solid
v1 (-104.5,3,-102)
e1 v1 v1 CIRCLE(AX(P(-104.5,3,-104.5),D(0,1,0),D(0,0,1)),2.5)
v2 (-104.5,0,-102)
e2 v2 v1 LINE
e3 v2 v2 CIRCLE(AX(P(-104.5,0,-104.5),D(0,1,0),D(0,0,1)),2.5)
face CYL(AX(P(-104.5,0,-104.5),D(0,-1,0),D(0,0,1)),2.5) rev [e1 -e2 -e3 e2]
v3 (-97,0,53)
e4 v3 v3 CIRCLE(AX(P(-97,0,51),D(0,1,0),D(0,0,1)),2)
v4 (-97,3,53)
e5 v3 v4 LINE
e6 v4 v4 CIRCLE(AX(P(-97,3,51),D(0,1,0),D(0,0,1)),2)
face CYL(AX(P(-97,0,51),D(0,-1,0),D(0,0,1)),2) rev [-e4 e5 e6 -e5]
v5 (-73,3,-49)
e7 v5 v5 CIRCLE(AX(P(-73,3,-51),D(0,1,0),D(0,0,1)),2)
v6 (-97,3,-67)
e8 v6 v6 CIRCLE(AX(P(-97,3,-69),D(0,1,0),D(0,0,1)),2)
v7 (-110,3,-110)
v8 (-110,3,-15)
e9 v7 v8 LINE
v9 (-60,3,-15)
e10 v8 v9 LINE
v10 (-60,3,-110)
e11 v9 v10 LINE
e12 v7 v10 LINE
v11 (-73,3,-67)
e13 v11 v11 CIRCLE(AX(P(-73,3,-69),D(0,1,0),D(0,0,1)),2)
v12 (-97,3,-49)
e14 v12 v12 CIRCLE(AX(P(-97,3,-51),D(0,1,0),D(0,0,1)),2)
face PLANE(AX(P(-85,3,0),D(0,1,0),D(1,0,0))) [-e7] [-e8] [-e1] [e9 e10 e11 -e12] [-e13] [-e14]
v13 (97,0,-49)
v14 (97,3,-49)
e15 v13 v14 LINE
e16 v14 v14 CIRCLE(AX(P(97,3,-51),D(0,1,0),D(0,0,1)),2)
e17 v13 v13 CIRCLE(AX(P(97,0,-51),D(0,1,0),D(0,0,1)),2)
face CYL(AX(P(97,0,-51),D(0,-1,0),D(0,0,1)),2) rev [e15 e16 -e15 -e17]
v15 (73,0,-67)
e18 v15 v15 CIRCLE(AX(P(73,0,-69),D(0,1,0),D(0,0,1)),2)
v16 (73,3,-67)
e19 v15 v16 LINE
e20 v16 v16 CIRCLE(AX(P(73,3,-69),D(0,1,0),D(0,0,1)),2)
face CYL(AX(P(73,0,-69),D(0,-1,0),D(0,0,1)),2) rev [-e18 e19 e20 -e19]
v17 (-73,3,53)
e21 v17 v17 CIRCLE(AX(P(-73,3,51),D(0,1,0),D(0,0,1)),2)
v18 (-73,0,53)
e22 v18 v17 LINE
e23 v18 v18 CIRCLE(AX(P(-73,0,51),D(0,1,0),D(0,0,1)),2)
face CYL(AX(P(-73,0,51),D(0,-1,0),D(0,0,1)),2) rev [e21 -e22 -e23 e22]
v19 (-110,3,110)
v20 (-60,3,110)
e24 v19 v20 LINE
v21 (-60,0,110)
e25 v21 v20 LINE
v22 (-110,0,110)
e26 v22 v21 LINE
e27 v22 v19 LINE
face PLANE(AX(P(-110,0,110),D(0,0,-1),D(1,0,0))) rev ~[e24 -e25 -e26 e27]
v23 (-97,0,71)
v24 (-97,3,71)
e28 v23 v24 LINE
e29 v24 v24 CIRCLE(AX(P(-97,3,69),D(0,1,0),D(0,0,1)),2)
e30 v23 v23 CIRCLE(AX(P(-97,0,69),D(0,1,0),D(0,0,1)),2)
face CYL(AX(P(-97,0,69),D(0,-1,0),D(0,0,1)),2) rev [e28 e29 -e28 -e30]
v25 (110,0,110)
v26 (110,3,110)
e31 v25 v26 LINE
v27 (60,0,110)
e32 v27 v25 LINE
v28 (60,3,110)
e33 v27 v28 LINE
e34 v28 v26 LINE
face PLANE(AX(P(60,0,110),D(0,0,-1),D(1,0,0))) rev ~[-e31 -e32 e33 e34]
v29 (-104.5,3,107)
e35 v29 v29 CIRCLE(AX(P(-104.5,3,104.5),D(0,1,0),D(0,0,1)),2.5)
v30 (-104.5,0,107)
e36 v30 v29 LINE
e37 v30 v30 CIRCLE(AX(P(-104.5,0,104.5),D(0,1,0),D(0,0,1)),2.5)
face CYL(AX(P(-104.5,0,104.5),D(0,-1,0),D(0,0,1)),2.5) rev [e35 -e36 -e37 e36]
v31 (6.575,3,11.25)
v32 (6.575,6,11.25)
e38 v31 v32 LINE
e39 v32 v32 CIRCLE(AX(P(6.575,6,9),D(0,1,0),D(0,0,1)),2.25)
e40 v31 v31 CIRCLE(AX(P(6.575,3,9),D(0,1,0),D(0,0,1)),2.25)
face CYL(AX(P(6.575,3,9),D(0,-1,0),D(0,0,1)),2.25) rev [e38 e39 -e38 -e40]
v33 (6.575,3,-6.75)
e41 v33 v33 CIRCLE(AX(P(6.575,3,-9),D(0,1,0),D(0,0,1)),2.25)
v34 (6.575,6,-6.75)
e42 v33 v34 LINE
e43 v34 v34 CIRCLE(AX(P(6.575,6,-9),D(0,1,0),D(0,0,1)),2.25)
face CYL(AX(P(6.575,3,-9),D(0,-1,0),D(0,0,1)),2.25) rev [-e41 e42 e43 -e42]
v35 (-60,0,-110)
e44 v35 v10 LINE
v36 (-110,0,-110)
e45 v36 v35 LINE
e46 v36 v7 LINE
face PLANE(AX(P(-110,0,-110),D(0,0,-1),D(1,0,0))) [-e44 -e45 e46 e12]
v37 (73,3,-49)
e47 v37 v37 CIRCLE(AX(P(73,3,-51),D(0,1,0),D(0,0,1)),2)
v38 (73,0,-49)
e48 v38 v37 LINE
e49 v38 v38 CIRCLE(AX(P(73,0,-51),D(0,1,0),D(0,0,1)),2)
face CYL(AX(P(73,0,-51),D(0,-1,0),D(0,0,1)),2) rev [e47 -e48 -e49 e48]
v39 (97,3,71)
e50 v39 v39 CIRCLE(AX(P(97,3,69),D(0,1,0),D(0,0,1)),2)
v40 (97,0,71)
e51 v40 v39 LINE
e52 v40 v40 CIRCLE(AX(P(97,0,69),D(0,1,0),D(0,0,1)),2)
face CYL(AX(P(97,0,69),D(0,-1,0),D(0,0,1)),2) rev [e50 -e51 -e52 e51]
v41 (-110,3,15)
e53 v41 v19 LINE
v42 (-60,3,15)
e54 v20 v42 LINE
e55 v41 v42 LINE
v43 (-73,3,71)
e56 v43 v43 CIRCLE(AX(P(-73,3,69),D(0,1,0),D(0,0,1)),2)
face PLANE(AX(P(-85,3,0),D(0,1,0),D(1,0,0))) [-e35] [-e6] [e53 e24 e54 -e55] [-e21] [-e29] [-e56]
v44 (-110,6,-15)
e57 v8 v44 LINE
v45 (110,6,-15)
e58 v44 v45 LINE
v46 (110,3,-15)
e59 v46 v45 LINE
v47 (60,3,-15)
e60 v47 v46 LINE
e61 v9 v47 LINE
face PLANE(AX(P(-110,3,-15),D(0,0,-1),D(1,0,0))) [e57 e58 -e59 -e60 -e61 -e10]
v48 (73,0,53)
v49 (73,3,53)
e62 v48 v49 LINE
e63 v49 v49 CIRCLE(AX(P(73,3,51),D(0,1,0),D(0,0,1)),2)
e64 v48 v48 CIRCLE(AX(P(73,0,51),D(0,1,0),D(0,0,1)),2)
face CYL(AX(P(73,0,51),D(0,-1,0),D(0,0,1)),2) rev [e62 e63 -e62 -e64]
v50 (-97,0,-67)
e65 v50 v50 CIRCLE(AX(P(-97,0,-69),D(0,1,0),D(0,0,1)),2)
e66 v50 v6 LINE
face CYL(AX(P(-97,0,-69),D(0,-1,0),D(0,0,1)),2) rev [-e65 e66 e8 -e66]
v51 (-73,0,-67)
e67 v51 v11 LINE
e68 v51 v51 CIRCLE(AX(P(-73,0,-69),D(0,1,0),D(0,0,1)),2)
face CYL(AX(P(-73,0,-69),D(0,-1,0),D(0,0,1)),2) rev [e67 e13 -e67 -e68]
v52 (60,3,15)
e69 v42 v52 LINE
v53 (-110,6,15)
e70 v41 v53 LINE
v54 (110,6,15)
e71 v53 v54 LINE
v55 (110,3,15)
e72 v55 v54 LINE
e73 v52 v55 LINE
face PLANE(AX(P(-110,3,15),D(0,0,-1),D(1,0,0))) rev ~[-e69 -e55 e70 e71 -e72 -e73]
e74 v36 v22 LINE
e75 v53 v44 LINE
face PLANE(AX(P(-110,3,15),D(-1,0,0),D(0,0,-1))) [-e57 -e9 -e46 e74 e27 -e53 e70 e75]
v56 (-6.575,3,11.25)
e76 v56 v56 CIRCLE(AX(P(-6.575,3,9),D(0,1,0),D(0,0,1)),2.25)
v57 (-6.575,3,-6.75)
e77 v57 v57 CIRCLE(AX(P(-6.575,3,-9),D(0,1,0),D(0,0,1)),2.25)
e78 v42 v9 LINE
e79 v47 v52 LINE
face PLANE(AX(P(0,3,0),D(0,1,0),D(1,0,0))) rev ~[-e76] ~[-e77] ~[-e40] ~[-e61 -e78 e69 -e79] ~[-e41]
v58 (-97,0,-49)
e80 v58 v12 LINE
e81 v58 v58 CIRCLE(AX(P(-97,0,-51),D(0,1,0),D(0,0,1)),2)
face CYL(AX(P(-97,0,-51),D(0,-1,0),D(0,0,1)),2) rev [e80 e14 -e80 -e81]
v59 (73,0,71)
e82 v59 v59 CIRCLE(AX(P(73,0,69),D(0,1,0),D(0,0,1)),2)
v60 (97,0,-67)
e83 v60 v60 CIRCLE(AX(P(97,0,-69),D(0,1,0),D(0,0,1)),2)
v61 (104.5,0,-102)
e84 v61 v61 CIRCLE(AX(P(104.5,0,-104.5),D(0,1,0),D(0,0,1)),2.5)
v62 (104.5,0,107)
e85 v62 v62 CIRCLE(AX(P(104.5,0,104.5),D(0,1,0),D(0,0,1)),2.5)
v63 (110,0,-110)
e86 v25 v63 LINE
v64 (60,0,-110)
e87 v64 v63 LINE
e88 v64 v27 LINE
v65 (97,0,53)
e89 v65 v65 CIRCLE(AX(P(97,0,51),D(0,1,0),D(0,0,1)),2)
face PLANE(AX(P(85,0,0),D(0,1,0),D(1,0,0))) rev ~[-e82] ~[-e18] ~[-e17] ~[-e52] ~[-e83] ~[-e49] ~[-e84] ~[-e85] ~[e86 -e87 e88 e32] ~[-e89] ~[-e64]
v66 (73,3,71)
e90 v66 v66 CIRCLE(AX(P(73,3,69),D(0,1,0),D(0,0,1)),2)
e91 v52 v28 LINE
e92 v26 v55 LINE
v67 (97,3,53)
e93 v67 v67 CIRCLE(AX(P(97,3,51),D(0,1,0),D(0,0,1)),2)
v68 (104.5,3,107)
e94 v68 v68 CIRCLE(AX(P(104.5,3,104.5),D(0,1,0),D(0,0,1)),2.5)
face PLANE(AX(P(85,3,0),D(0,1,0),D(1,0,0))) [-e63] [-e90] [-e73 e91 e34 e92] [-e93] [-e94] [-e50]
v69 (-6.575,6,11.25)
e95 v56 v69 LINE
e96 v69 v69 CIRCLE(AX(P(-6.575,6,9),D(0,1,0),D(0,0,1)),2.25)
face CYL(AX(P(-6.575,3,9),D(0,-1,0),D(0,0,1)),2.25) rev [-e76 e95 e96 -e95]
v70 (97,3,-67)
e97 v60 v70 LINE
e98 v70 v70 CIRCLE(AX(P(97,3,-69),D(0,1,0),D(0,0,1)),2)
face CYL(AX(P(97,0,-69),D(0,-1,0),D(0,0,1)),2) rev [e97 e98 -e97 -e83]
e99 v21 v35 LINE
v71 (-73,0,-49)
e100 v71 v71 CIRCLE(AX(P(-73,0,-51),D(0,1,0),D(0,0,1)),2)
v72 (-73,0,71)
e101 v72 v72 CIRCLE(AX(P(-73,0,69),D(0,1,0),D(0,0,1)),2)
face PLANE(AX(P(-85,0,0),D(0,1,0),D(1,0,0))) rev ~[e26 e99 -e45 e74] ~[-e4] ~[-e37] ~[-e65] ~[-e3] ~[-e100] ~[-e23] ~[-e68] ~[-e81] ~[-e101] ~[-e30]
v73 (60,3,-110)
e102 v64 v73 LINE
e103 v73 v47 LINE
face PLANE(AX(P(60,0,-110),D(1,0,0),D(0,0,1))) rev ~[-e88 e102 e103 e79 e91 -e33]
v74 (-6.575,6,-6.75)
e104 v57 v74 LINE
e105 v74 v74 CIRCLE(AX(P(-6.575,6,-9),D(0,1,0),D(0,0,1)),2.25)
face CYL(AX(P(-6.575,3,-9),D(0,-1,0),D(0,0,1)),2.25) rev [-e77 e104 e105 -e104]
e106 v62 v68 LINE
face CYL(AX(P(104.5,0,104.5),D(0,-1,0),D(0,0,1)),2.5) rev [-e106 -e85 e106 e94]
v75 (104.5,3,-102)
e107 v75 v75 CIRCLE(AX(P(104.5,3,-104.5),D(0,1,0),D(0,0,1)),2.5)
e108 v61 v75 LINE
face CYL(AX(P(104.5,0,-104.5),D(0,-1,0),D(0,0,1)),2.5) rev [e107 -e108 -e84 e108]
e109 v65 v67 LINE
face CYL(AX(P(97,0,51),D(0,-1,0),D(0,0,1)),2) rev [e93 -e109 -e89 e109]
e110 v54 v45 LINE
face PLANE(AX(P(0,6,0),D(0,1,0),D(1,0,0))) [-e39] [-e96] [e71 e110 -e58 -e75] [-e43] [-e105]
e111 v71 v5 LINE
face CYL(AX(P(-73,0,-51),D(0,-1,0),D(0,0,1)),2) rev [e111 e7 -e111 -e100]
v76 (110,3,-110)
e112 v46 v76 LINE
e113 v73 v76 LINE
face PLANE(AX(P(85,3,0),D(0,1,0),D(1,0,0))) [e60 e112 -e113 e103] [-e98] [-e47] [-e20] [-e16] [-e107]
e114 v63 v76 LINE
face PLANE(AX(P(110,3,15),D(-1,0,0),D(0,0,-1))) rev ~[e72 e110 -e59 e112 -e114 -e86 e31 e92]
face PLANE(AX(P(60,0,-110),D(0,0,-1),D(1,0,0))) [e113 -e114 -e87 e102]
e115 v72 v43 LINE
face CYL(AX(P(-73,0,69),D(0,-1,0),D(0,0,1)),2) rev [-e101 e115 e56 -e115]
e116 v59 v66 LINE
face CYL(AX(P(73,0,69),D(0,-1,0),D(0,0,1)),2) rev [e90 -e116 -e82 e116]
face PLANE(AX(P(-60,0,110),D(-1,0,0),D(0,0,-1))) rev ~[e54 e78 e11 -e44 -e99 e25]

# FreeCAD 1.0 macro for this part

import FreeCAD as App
import Part
import Sketcher

doc = App.newDocument("Part")
body = doc.addObject("PartDesign::Body", "Body")
body.AllowCompound = True

sketch1 = body.newObject("Sketcher::SketchObject", "Sketch")
sketch1.AttachmentSupport = (doc.getObject("XZ_Plane"), [""])
sketch1.MapMode = "FlatFace"
sketch1.addGeometry([
    Part.LineSegment(App.Vector(-110, 110, 0), App.Vector(-60, 110, 0)),
    Part.LineSegment(App.Vector(-60, 110, 0), App.Vector(-60, -110, 0)),
    Part.LineSegment(App.Vector(-60, -110, 0), App.Vector(-110, -110, 0)),
    Part.LineSegment(App.Vector(-110, -110, 0), App.Vector(-110, 110, 0)),
    Part.Circle(App.Vector(-104.5, 104.5, 0), App.Vector(0, 0, 1), 2.5),
    Part.Circle(App.Vector(-97, 69, 0), App.Vector(0, 0, 1), 2),
    Part.Circle(App.Vector(-97, 51, 0), App.Vector(0, 0, 1), 2),
    Part.Circle(App.Vector(-73, 69, 0), App.Vector(0, 0, 1), 2),
    Part.Circle(App.Vector(-73, 51, 0), App.Vector(0, 0, 1), 2),
    Part.Circle(App.Vector(-97, -51, 0), App.Vector(0, 0, 1), 2),
    Part.Circle(App.Vector(-104.5, -104.5, 0), App.Vector(0, 0, 1), 2.5),
    Part.Circle(App.Vector(-97, -69, 0), App.Vector(0, 0, 1), 2),
    Part.Circle(App.Vector(-73, -51, 0), App.Vector(0, 0, 1), 2),
    Part.Circle(App.Vector(-73, -69, 0), App.Vector(0, 0, 1), 2),
    Part.LineSegment(App.Vector(60, 110, 0), App.Vector(110, 110, 0)),
    Part.LineSegment(App.Vector(110, 110, 0), App.Vector(110, -110, 0)),
    Part.LineSegment(App.Vector(110, -110, 0), App.Vector(60, -110, 0)),
    Part.LineSegment(App.Vector(60, -110, 0), App.Vector(60, 110, 0)),
    Part.Circle(App.Vector(73, 69, 0), App.Vector(0, 0, 1), 2),
    Part.Circle(App.Vector(73, 51, 0), App.Vector(0, 0, 1), 2),
    Part.Circle(App.Vector(97, 69, 0), App.Vector(0, 0, 1), 2),
    Part.Circle(App.Vector(104.5, 104.5, 0), App.Vector(0, 0, 1), 2.5),
    Part.Circle(App.Vector(97, 51, 0), App.Vector(0, 0, 1), 2),
    Part.Circle(App.Vector(73, -51, 0), App.Vector(0, 0, 1), 2),
    Part.Circle(App.Vector(73, -69, 0), App.Vector(0, 0, 1), 2),
    Part.Circle(App.Vector(97, -51, 0), App.Vector(0, 0, 1), 2),
    Part.Circle(App.Vector(97, -69, 0), App.Vector(0, 0, 1), 2),
    Part.Circle(App.Vector(104.5, -104.5, 0), App.Vector(0, 0, 1), 2.5),
], False)
sketch1.addConstraint([
    Sketcher.Constraint("Coincident", 0, 2, 1, 1),
    Sketcher.Constraint("Coincident", 1, 2, 2, 1),
    Sketcher.Constraint("Coincident", 2, 2, 3, 1),
    Sketcher.Constraint("Coincident", 3, 2, 0, 1),
    Sketcher.Constraint("Coincident", 14, 2, 15, 1),
    Sketcher.Constraint("Coincident", 15, 2, 16, 1),
    Sketcher.Constraint("Coincident", 16, 2, 17, 1),
    Sketcher.Constraint("Coincident", 17, 2, 14, 1),
    Sketcher.Constraint("Horizontal", 0),
    Sketcher.Constraint("Vertical", 1),
    Sketcher.Constraint("Horizontal", 2),
    Sketcher.Constraint("Vertical", 3),
    Sketcher.Constraint("Horizontal", 14),
    Sketcher.Constraint("Vertical", 15),
    Sketcher.Constraint("Horizontal", 16),
    Sketcher.Constraint("Vertical", 17),
    Sketcher.Constraint("Equal", 5, 6),
    Sketcher.Constraint("Equal", 6, 7),
    Sketcher.Constraint("Equal", 7, 8),
    Sketcher.Constraint("Equal", 8, 9),
    Sketcher.Constraint("Equal", 4, 10),
    Sketcher.Constraint("Equal", 9, 11),
    Sketcher.Constraint("Equal", 11, 12),
    Sketcher.Constraint("Equal", 12, 13),
    Sketcher.Constraint("Equal", 13, 18),
    Sketcher.Constraint("Equal", 18, 19),
    Sketcher.Constraint("Equal", 19, 20),
    Sketcher.Constraint("Equal", 10, 21),
    Sketcher.Constraint("Equal", 20, 22),
    Sketcher.Constraint("Equal", 22, 23),
    Sketcher.Constraint("Equal", 23, 24),
    Sketcher.Constraint("Equal", 24, 25),
    Sketcher.Constraint("Equal", 25, 26),
    Sketcher.Constraint("Equal", 21, 27),
    Sketcher.Constraint("Symmetric", 13, 3, 18, 3, -1, 1),
    Sketcher.Constraint("Symmetric", 12, 3, 19, 3, -1, 1),
    Sketcher.Constraint("Symmetric", 11, 3, 20, 3, -1, 1),
    Sketcher.Constraint("Symmetric", 10, 3, 21, 3, -1, 1),
    Sketcher.Constraint("Symmetric", 9, 3, 22, 3, -1, 1),
    Sketcher.Constraint("Symmetric", 8, 3, 23, 3, -1, 1),
    Sketcher.Constraint("Symmetric", 7, 3, 24, 3, -1, 1),
    Sketcher.Constraint("Symmetric", 6, 3, 25, 3, -1, 1),
    Sketcher.Constraint("Symmetric", 5, 3, 26, 3, -1, 1),
    Sketcher.Constraint("Symmetric", 4, 3, 27, 3, -1, 1),
    Sketcher.Constraint("Symmetric", 2, 2, 14, 2, -1, 1),
    Sketcher.Constraint("Symmetric", 0, 2, 16, 2, -1, 1),
    Sketcher.Constraint("Symmetric", 7, 3, 18, 3, -2),
    Sketcher.Constraint("Symmetric", 8, 3, 19, 3, -2),
    Sketcher.Constraint("Symmetric", 5, 3, 20, 3, -2),
    Sketcher.Constraint("Symmetric", 4, 3, 21, 3, -2),
    Sketcher.Constraint("Symmetric", 6, 3, 22, 3, -2),
    Sketcher.Constraint("Horizontal", 5, 3, 7, 3),
    Sketcher.Constraint("Horizontal", 6, 3, 8, 3),
    Sketcher.Constraint("Horizontal", 3, 2, 14, 2),
    Sketcher.Constraint("Vertical", 5, 3, 6, 3),
    Sketcher.Constraint("Vertical", 7, 3, 8, 3),
    Sketcher.Constraint("Diameter", 4, 5.0),
    Sketcher.Constraint("Diameter", 5, 4.0),
    Sketcher.Constraint("DistanceX", 0, 1, 0, 2, 50.0),
    Sketcher.Constraint("DistanceY", 1, 2, 1, 1, 220.0),
    Sketcher.Constraint("DistanceX", 5, 3, -1, 1, 97.0),
    Sketcher.Constraint("DistanceY", -1, 1, 5, 3, 69.0),
    Sketcher.Constraint("DistanceY", -1, 1, 6, 3, 51.0),
    Sketcher.Constraint("DistanceX", 7, 3, -1, 1, 73.0),
    Sketcher.Constraint("DistanceX", 0, 2, -1, 1, 60.0),
    Sketcher.Constraint("DistanceX", 4, 3, -1, 1, 104.5),
    Sketcher.Constraint("DistanceY", -1, 1, 4, 3, 104.5),
])
pad1 = body.newObject("PartDesign::Pad", "Pad")
pad1.Profile = sketch1
pad1.Length = 3
pad1.Reversed = True

sketch2 = body.newObject("Sketcher::SketchObject", "Sketch001")
sketch2.AttachmentSupport = (doc.getObject("XZ_Plane"), [""])
sketch2.MapMode = "FlatFace"
sketch2.AttachmentOffset = App.Placement(App.Vector(0, 0, -3), App.Rotation())
sketch2.addGeometry([
    Part.LineSegment(App.Vector(-110, -15, 0), App.Vector(-110, 15, 0)),
    Part.LineSegment(App.Vector(-110, 15, 0), App.Vector(110, 15, 0)),
    Part.LineSegment(App.Vector(110, 15, 0), App.Vector(110, -15, 0)),
    Part.LineSegment(App.Vector(110, -15, 0), App.Vector(-110, -15, 0)),
    Part.Circle(App.Vector(-6.6, 9, 0), App.Vector(0, 0, 1), 2.2),
    Part.Circle(App.Vector(6.6, 9, 0), App.Vector(0, 0, 1), 2.2),
    Part.Circle(App.Vector(-6.6, -9, 0), App.Vector(0, 0, 1), 2.2),
    Part.Circle(App.Vector(6.6, -9, 0), App.Vector(0, 0, 1), 2.2),
], False)
sketch2.addConstraint([
    Sketcher.Constraint("Coincident", 0, 2, 1, 1),
    Sketcher.Constraint("Coincident", 1, 2, 2, 1),
    Sketcher.Constraint("Coincident", 2, 2, 3, 1),
    Sketcher.Constraint("Coincident", 3, 2, 0, 1),
    Sketcher.Constraint("Vertical", 0),
    Sketcher.Constraint("Horizontal", 1),
    Sketcher.Constraint("Vertical", 2),
    Sketcher.Constraint("Horizontal", 3),
    Sketcher.Constraint("Equal", 4, 5),
    Sketcher.Constraint("Equal", 5, 6),
    Sketcher.Constraint("Equal", 6, 7),
    Sketcher.Constraint("Symmetric", 5, 3, 6, 3, -1, 1),
    Sketcher.Constraint("Symmetric", 4, 3, 7, 3, -1, 1),
    Sketcher.Constraint("Symmetric", 0, 2, 2, 2, -1, 1),
    Sketcher.Constraint("Symmetric", 4, 3, 5, 3, -2),
    Sketcher.Constraint("Diameter", 4, 4.5),
    Sketcher.Constraint("DistanceX", 1, 1, 1, 2, 220.0),
    Sketcher.Constraint("DistanceY", 0, 1, 0, 2, 30.0),
    Sketcher.Constraint("DistanceY", -1, 1, 4, 3, 9.0),
    Sketcher.Constraint("DistanceX", 4, 3, 5, 3, 13.15),
])
pad2 = body.newObject("PartDesign::Pad", "Pad001")
pad2.Profile = sketch2
pad2.Length = 3
pad2.Reversed = True

doc.recompute()
